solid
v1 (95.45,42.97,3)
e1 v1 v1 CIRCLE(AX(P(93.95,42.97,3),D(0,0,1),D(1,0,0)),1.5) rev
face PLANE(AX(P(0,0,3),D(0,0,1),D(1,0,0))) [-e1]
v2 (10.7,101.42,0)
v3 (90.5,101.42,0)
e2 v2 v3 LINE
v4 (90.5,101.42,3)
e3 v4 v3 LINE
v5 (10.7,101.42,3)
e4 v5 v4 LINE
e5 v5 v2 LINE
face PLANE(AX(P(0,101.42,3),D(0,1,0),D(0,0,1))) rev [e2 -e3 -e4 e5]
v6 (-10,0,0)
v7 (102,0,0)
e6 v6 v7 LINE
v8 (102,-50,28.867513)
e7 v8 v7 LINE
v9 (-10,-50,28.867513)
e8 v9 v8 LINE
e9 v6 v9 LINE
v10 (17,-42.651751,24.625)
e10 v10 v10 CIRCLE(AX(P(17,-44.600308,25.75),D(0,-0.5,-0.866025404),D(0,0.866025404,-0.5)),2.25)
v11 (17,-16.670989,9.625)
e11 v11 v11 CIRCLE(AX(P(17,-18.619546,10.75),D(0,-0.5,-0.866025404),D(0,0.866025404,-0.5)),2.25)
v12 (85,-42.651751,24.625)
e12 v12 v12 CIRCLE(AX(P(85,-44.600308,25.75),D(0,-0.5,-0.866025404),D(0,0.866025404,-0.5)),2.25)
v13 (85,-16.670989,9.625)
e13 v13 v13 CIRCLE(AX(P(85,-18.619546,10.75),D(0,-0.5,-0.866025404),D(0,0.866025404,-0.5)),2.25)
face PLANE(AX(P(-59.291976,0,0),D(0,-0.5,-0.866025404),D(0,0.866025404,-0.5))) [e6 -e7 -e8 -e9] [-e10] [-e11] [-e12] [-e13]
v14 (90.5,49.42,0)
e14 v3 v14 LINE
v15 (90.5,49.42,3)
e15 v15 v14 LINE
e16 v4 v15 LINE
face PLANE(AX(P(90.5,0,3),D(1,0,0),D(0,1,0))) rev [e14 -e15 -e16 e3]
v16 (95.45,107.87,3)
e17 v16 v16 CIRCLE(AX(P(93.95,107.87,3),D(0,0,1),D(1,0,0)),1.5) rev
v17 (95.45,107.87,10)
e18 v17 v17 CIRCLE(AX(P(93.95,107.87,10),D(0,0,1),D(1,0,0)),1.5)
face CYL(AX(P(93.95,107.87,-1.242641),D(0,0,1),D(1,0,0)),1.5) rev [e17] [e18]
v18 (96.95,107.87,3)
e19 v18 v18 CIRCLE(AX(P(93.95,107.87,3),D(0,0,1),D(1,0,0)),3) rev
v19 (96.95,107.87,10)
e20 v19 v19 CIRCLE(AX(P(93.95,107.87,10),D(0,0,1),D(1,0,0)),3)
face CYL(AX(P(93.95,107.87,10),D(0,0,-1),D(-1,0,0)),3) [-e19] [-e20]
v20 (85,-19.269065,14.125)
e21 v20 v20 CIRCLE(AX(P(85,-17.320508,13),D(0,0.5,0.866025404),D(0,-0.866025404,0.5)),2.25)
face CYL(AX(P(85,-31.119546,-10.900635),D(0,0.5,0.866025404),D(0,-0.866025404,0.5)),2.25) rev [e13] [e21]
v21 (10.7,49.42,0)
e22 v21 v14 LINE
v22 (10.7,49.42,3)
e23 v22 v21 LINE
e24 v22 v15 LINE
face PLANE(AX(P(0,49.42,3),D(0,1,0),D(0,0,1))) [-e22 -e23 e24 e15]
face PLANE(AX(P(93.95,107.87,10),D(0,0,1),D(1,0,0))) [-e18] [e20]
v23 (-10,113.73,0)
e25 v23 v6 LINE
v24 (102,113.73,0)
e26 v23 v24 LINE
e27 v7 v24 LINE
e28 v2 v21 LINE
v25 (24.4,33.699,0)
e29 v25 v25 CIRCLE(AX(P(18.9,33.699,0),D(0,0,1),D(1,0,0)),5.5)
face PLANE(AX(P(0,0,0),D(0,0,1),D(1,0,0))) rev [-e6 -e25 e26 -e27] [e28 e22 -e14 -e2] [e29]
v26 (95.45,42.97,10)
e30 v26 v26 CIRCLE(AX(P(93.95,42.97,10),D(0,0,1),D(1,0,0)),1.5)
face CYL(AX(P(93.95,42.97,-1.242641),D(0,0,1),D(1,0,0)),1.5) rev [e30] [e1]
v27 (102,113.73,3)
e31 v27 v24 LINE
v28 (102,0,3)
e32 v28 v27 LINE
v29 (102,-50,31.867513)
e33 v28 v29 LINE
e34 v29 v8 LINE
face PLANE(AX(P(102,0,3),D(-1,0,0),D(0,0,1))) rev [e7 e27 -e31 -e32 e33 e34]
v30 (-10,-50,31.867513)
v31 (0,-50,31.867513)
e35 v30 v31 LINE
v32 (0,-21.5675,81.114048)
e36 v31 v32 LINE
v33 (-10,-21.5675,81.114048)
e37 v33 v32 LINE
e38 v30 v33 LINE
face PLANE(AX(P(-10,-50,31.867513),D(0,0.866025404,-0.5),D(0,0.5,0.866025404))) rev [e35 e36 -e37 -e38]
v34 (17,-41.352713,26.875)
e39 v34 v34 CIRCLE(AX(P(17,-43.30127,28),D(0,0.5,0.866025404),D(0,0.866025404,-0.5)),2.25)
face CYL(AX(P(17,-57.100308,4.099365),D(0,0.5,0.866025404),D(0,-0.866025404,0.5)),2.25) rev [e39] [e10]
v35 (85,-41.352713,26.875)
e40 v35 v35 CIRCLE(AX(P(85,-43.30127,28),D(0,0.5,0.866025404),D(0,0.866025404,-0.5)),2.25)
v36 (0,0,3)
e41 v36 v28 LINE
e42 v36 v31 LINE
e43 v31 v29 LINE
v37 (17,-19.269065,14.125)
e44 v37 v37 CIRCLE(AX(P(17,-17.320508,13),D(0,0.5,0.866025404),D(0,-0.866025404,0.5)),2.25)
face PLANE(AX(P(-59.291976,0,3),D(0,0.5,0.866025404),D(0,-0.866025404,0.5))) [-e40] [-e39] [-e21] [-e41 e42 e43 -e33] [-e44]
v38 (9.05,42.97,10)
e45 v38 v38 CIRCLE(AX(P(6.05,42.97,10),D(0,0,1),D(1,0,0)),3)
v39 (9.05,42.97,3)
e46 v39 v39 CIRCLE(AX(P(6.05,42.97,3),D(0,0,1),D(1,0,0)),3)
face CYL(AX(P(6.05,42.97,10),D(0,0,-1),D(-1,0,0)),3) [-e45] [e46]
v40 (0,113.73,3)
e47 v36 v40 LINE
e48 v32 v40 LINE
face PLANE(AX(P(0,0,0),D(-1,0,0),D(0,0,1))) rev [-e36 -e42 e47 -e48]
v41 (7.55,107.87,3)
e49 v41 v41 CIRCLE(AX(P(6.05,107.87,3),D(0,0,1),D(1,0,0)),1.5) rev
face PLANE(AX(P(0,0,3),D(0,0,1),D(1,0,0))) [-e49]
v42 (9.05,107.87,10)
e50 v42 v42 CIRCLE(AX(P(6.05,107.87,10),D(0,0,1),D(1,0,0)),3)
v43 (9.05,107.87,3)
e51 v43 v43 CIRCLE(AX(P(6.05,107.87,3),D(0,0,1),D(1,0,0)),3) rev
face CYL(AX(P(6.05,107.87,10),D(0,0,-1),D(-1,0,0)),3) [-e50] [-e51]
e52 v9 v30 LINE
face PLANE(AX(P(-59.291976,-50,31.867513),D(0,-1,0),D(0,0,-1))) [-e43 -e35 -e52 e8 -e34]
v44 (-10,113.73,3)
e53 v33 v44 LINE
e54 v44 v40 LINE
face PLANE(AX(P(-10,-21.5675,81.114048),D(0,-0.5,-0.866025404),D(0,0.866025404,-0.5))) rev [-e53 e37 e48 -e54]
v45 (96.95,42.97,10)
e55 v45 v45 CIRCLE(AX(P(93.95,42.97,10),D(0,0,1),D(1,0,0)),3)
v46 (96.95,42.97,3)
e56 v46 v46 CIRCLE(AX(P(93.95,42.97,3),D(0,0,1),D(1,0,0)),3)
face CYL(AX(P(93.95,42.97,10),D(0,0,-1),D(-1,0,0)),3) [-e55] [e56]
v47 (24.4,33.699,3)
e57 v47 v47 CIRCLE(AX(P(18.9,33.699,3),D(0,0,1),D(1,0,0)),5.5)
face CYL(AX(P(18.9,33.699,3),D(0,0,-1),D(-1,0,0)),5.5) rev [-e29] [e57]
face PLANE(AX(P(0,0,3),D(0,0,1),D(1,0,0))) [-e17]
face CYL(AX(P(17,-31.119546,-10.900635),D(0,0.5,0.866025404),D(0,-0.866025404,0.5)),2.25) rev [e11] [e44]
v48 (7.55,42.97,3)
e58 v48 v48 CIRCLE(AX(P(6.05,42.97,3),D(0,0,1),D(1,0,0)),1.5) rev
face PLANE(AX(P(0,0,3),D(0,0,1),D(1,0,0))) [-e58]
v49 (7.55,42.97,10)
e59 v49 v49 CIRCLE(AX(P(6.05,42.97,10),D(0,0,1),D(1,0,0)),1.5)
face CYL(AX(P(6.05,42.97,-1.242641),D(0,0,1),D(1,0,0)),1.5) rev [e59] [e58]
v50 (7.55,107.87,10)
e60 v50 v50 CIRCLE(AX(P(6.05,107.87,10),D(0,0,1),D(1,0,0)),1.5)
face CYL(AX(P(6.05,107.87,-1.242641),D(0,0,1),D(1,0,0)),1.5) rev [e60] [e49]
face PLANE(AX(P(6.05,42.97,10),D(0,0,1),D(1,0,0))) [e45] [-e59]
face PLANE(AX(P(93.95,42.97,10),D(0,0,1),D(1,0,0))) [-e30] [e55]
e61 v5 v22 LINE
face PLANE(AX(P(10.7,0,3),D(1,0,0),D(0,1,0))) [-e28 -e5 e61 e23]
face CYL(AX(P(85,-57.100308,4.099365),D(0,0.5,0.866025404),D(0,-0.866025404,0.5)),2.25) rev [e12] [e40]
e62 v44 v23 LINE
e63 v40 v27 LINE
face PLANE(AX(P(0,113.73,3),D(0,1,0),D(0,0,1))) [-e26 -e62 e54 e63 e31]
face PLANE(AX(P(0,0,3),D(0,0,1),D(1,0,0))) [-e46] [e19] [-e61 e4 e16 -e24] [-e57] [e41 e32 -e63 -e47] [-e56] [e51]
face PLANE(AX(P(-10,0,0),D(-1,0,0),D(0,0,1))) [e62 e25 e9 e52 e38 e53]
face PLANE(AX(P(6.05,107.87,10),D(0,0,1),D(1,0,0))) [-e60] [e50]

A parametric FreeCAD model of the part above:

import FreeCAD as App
import Part
import Sketcher
Q = App.Units.Quantity


def add_polygon(sketch, points):
    """Adds a closed chain of lines whose ends are joined by coincident constraints."""
    first, n = sketch.GeometryCount, len(points)
    for a, b in zip(points, points[1:] + points[:1]):
        sketch.addGeometry(Part.LineSegment(App.Vector(*a, 0), App.Vector(*b, 0)), False)
    for i in range(n):
        sketch.addConstraint(Sketcher.Constraint("Coincident", first + i, 2, first + (i + 1) % n, 1))

doc = App.newDocument("Part")
params = doc.addObject("Spreadsheet::Sheet", "Params")
for row, (alias, value) in enumerate([
    ("sketch1_diameter", "11 mm"),
    ("sketch1_diameter2", "6 mm"),
    ("sketch1_width", "102 mm"),
    ("sketch1_height", "52 mm"),
    ("sketch1_width2", "79.8 mm"),
    ("pad1_length", "3 mm"),
    ("sketch2_diameter", "6 mm"),
    ("pad2_length", "10 mm"),
    ("sketch3_diameter", "3 mm"),
    ("pocket1_length", "7 mm"),
    ("sketch4_height", "3 mm"),
    ("pad3_length", "102 mm"),
    ("sketch5_diameter", "4.5 mm"),
    ("sketch6_height", "3 mm"),
    ("sketch6_width", "113.73 mm"),
    ("pad4_length", "10 mm"),
], start=1):
    params.set(f"A{row}", alias)
    params.set(f"B{row}", "=" + value)
    params.setAlias(f"B{row}", alias)

body = doc.addObject("PartDesign::Body", "Body")

sketch1 = doc.addObject("Sketcher::SketchObject", "Sketch")
body.addObject(sketch1)
sketch1.AttachmentSupport = (doc.XY_Plane, [""])
sketch1.MapMode = "FlatFace"
add_polygon(sketch1, [(0, 113.7), (0, 0), (102, 0), (102, 113.7)])
sketch1.addGeometry(Part.Circle(App.Vector(18.9, 33.7, 0), App.Vector(0, 0, 1), 5.5), False)
sketch1.addGeometry(Part.Circle(App.Vector(6, 43, 0), App.Vector(0, 0, 1), 3), False)
sketch1.addGeometry(Part.Circle(App.Vector(94, 43, 0), App.Vector(0, 0, 1), 3), False)
add_polygon(sketch1, [(90.5, 49.4), (10.7, 49.4), (10.7, 101.4), (90.5, 101.4)])
sketch1.addConstraint([
    Sketcher.Constraint("Vertical", 0),
    Sketcher.Constraint("Horizontal", 1),
    Sketcher.Constraint("Vertical", 2),
    Sketcher.Constraint("Horizontal", 3),
    Sketcher.Constraint("Horizontal", 7),
    Sketcher.Constraint("Vertical", 8),
    Sketcher.Constraint("Horizontal", 9),
    Sketcher.Constraint("Vertical", 10),
    Sketcher.Constraint("Coincident", 0, 2, -1, 1),
    Sketcher.Constraint("Equal", 5, 6),
    Sketcher.Constraint("Horizontal", 5, 3, 6, 3),
    Sketcher.Constraint("Diameter", 4, Q("11 mm")),
    Sketcher.Constraint("Diameter", 5, Q("6 mm")),
    Sketcher.Constraint("DistanceX", 1, 1, 1, 2, Q("102 mm")),
    Sketcher.Constraint("DistanceY", 8, 1, 8, 2, Q("52 mm")),
    Sketcher.Constraint("DistanceX", 7, 2, 7, 1, Q("79.8 mm")),
    Sketcher.Constraint("DistanceY", 0, 2, 0, 1, Q("113.73 mm")),
    Sketcher.Constraint("DistanceX", -1, 1, 4, 3, Q("18.9 mm")),
    Sketcher.Constraint("DistanceX", -1, 1, 7, 2, Q("10.7 mm")),
    Sketcher.Constraint("DistanceX", 5, 3, 6, 3, Q("87.9 mm")),
    Sketcher.Constraint("DistanceX", -1, 1, 5, 3, Q("6.05 mm")),
    Sketcher.Constraint("DistanceY", -1, 1, 5, 3, Q("42.97 mm")),
    Sketcher.Constraint("DistanceY", -1, 1, 7, 2, Q("49.42 mm")),
    Sketcher.Constraint("DistanceY", -1, 1, 4, 3, Q("33.699 mm")),
])
sketch1.setExpression("Constraints[19]", "Params.sketch1_diameter")
sketch1.setExpression("Constraints[20]", "Params.sketch1_diameter2")
sketch1.setExpression("Constraints[21]", "Params.sketch1_width")
sketch1.setExpression("Constraints[22]", "Params.sketch1_height")
sketch1.setExpression("Constraints[23]", "Params.sketch1_width2")
pad1 = doc.addObject("PartDesign::Pad", "Pad")
body.addObject(pad1)
pad1.Profile = sketch1
pad1.setExpression("Length", "Params.pad1_length")

sketch2 = doc.addObject("Sketcher::SketchObject", "Sketch001")
body.addObject(sketch2)
sketch2.AttachmentSupport = (doc.XY_Plane, [""])
sketch2.MapMode = "FlatFace"
sketch2.addGeometry([
    Part.Circle(App.Vector(6, 107.9, 0), App.Vector(0, 0, 1), 3),
    Part.Circle(App.Vector(94, 107.9, 0), App.Vector(0, 0, 1), 3),
    Part.Circle(App.Vector(6, 43, 0), App.Vector(0, 0, 1), 3),
    Part.Circle(App.Vector(94, 43, 0), App.Vector(0, 0, 1), 3),
], False)
sketch2.addConstraint([
    Sketcher.Constraint("Equal", 0, 1),
    Sketcher.Constraint("Equal", 1, 2),
    Sketcher.Constraint("Equal", 2, 3),
    Sketcher.Constraint("Horizontal", 0, 3, 1, 3),
    Sketcher.Constraint("Horizontal", 2, 3, 3, 3),
    Sketcher.Constraint("Vertical", 0, 3, 2, 3),
    Sketcher.Constraint("Vertical", 1, 3, 3, 3),
    Sketcher.Constraint("Diameter", 0, Q("6 mm")),
    Sketcher.Constraint("DistanceX", 0, 3, 1, 3, Q("87.9 mm")),
    Sketcher.Constraint("DistanceY", 2, 3, 0, 3, Q("64.9 mm")),
    Sketcher.Constraint("DistanceX", -1, 1, 0, 3, Q("6.05 mm")),
    Sketcher.Constraint("DistanceY", -1, 1, 0, 3, Q("107.87 mm")),
])
sketch2.setExpression("Constraints[7]", "Params.sketch2_diameter")
pad2 = doc.addObject("PartDesign::Pad", "Pad001")
body.addObject(pad2)
pad2.Profile = sketch2
pad2.setExpression("Length", "Params.pad2_length")

sketch3 = doc.addObject("Sketcher::SketchObject", "Sketch002")
body.addObject(sketch3)
sketch3.AttachmentSupport = (doc.XY_Plane, [""])
sketch3.MapMode = "FlatFace"
sketch3.AttachmentOffset = App.Placement(App.Vector(0, 0, 10), App.Rotation())
sketch3.addGeometry([
    Part.Circle(App.Vector(6, 107.9, 0), App.Vector(0, 0, 1), 1.5),
    Part.Circle(App.Vector(94, 107.9, 0), App.Vector(0, 0, 1), 1.5),
    Part.Circle(App.Vector(94, 43, 0), App.Vector(0, 0, 1), 1.5),
    Part.Circle(App.Vector(6, 43, 0), App.Vector(0, 0, 1), 1.5),
], False)
sketch3.addConstraint([
    Sketcher.Constraint("Equal", 0, 1),
    Sketcher.Constraint("Equal", 1, 2),
    Sketcher.Constraint("Equal", 2, 3),
    Sketcher.Constraint("Horizontal", 0, 3, 1, 3),
    Sketcher.Constraint("Horizontal", 2, 3, 3, 3),
    Sketcher.Constraint("Vertical", 1, 3, 2, 3),
    Sketcher.Constraint("Vertical", 0, 3, 3, 3),
    Sketcher.Constraint("Diameter", 0, Q("3 mm")),
    Sketcher.Constraint("DistanceX", 0, 3, 1, 3, Q("87.9 mm")),
    Sketcher.Constraint("DistanceY", 2, 3, 1, 3, Q("64.9 mm")),
    Sketcher.Constraint("DistanceX", -1, 1, 0, 3, Q("6.05 mm")),
    Sketcher.Constraint("DistanceY", -1, 1, 0, 3, Q("107.87 mm")),
])
sketch3.setExpression("Constraints[7]", "Params.sketch3_diameter")
pocket1 = doc.addObject("PartDesign::Pocket", "Pocket")
body.addObject(pocket1)
pocket1.Profile = sketch3
pocket1.setExpression("Length", "Params.pocket1_length")

sketch4 = doc.addObject("Sketcher::SketchObject", "Sketch003")
body.addObject(sketch4)
sketch4.AttachmentSupport = (doc.YZ_Plane, [""])
sketch4.MapMode = "FlatFace"
sketch4.AttachmentOffset = App.Placement(App.Vector(0, 0, 102), App.Rotation())
add_polygon(sketch4, [(0, 3), (-50, 31.9), (-50, 28.9), (0, 0)])
sketch4.addConstraint([
    Sketcher.Constraint("Vertical", 1),
    Sketcher.Constraint("Vertical", 3),
    Sketcher.Constraint("Coincident", 2, 2, -1, 1),
    Sketcher.Constraint("Parallel", 0, 2),
    Sketcher.Constraint("DistanceY", 1, 2, 1, 1, Q("3 mm")),
    Sketcher.Constraint("Angle", 0, Q("150 deg")),
    Sketcher.Constraint("DistanceX", 0, 2, -1, 1, Q("50 mm")),
])
sketch4.setExpression("Constraints[8]", "Params.sketch4_height")
pad3 = doc.addObject("PartDesign::Pad", "Pad002")
body.addObject(pad3)
pad3.Profile = sketch4
pad3.setExpression("Length", "Params.pad3_length")
pad3.Reversed = True

sketch5 = doc.addObject("Sketcher::SketchObject", "Sketch004")
body.addObject(sketch5)
sketch5.Placement = App.Placement(App.Vector(0, 1.299038, 2.25), App.Rotation(App.Vector(1, 0, 0), App.Vector(0, 0.866025404, -0.5), App.Vector(0, 0.5, 0.866025404), "ZXY"))
sketch5.addGeometry([
    Part.Circle(App.Vector(17, -21.5, 0), App.Vector(0, 0, 1), 2.2),
    Part.Circle(App.Vector(85, -21.5, 0), App.Vector(0, 0, 1), 2.2),
    Part.Circle(App.Vector(85, -51.5, 0), App.Vector(0, 0, 1), 2.2),
    Part.Circle(App.Vector(17, -51.5, 0), App.Vector(0, 0, 1), 2.2),
], False)
sketch5.addConstraint([
    Sketcher.Constraint("Equal", 0, 1),
    Sketcher.Constraint("Equal", 1, 2),
    Sketcher.Constraint("Equal", 2, 3),
    Sketcher.Constraint("Horizontal", 0, 3, 1, 3),
    Sketcher.Constraint("Horizontal", 2, 3, 3, 3),
    Sketcher.Constraint("Vertical", 1, 3, 2, 3),
    Sketcher.Constraint("Vertical", 0, 3, 3, 3),
    Sketcher.Constraint("Diameter", 0, Q("4.5 mm")),
    Sketcher.Constraint("DistanceX", -1, 1, 0, 3, Q("17 mm")),
    Sketcher.Constraint("DistanceX", -1, 1, 1, 3, Q("85 mm")),
    Sketcher.Constraint("DistanceY", 2, 3, 1, 3, Q("30 mm")),
    Sketcher.Constraint("DistanceY", 0, 3, -1, 1, Q("21.5 mm")),
])
sketch5.setExpression("Constraints[7]", "Params.sketch5_diameter")
pocket2 = doc.addObject("PartDesign::Pocket", "Pocket001")
body.addObject(pocket2)
pocket2.Profile = sketch5
pocket2.Type = "ThroughAll"

sketch6 = doc.addObject("Sketcher::SketchObject", "Sketch005")
body.addObject(sketch6)
sketch6.AttachmentSupport = (doc.YZ_Plane, [""])
sketch6.MapMode = "FlatFace"
add_polygon(sketch6, [(-50, 31.9), (-21.6, 81.1), (113.7, 3), (113.7, 0), (0, 0), (-50, 28.9)])
sketch6.addConstraint([
    Sketcher.Constraint("Vertical", 2),
    Sketcher.Constraint("Horizontal", 3),
    Sketcher.Constraint("Vertical", 5),
    Sketcher.Constraint("Coincident", 3, 2, -1, 1),
    Sketcher.Constraint("Perpendicular", 0, 1),
    Sketcher.Constraint("Parallel", 1, 4),
    Sketcher.Constraint("Equal", 2, 5),
    Sketcher.Constraint("DistanceY", 2, 2, 2, 1, Q("3 mm")),
    Sketcher.Constraint("Angle", 0, Q("60 deg")),
    Sketcher.Constraint("DistanceX", 4, 2, -1, 1, Q("50 mm")),
    Sketcher.Constraint("DistanceX", 3, 2, 3, 1, Q("113.73 mm")),
])
sketch6.setExpression("Constraints[13]", "Params.sketch6_height")
sketch6.setExpression("Constraints[16]", "Params.sketch6_width")
pad4 = doc.addObject("PartDesign::Pad", "Pad003")
body.addObject(pad4)
pad4.Profile = sketch6
pad4.setExpression("Length", "Params.pad4_length")
pad4.Reversed = True

doc.recompute()
